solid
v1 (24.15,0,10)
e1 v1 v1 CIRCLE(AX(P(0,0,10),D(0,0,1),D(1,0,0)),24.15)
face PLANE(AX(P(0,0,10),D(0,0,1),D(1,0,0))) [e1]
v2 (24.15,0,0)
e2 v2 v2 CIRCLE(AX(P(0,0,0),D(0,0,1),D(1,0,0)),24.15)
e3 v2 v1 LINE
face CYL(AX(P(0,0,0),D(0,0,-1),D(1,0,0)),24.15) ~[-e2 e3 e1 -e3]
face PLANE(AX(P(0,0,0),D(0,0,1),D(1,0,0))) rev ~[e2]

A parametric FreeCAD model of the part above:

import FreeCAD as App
import Part
import Sketcher

V = App.Vector
Q = App.Units.Quantity

doc = App.newDocument("Part")
params = doc.addObject("Spreadsheet::Sheet", "Params")
for row, (alias, value) in enumerate([
    ("sketch1_diameter", "48.3 mm"),
    ("pad1_length", "10 mm"),
], start=1):
    params.set(f"A{row}", alias)
    params.set(f"B{row}", "=" + value)
    params.setAlias(f"B{row}", alias)

body = doc.addObject("PartDesign::Body", "Body")

sketch1 = body.newObject("Sketcher::SketchObject", "Sketch")
sketch1.AttachmentSupport = (doc.getObject("XY_Plane"), [""])
sketch1.MapMode = "FlatFace"
sketch1.addGeometry(Part.Circle(V(0, 0, 0), V(0, 0, 1), 24.15), False)
sketch1.addConstraint(Sketcher.Constraint("Coincident", 0, 3, -1, 1))
sketch1.addConstraint(Sketcher.Constraint("Diameter", 0, Q("48.3 mm")))
sketch1.setExpression("Constraints[1]", "Params.sketch1_diameter")
pad1 = body.newObject("PartDesign::Pad", "Pad")
pad1.Profile = sketch1
pad1.setExpression("Length", "Params.pad1_length")

doc.recompute()
